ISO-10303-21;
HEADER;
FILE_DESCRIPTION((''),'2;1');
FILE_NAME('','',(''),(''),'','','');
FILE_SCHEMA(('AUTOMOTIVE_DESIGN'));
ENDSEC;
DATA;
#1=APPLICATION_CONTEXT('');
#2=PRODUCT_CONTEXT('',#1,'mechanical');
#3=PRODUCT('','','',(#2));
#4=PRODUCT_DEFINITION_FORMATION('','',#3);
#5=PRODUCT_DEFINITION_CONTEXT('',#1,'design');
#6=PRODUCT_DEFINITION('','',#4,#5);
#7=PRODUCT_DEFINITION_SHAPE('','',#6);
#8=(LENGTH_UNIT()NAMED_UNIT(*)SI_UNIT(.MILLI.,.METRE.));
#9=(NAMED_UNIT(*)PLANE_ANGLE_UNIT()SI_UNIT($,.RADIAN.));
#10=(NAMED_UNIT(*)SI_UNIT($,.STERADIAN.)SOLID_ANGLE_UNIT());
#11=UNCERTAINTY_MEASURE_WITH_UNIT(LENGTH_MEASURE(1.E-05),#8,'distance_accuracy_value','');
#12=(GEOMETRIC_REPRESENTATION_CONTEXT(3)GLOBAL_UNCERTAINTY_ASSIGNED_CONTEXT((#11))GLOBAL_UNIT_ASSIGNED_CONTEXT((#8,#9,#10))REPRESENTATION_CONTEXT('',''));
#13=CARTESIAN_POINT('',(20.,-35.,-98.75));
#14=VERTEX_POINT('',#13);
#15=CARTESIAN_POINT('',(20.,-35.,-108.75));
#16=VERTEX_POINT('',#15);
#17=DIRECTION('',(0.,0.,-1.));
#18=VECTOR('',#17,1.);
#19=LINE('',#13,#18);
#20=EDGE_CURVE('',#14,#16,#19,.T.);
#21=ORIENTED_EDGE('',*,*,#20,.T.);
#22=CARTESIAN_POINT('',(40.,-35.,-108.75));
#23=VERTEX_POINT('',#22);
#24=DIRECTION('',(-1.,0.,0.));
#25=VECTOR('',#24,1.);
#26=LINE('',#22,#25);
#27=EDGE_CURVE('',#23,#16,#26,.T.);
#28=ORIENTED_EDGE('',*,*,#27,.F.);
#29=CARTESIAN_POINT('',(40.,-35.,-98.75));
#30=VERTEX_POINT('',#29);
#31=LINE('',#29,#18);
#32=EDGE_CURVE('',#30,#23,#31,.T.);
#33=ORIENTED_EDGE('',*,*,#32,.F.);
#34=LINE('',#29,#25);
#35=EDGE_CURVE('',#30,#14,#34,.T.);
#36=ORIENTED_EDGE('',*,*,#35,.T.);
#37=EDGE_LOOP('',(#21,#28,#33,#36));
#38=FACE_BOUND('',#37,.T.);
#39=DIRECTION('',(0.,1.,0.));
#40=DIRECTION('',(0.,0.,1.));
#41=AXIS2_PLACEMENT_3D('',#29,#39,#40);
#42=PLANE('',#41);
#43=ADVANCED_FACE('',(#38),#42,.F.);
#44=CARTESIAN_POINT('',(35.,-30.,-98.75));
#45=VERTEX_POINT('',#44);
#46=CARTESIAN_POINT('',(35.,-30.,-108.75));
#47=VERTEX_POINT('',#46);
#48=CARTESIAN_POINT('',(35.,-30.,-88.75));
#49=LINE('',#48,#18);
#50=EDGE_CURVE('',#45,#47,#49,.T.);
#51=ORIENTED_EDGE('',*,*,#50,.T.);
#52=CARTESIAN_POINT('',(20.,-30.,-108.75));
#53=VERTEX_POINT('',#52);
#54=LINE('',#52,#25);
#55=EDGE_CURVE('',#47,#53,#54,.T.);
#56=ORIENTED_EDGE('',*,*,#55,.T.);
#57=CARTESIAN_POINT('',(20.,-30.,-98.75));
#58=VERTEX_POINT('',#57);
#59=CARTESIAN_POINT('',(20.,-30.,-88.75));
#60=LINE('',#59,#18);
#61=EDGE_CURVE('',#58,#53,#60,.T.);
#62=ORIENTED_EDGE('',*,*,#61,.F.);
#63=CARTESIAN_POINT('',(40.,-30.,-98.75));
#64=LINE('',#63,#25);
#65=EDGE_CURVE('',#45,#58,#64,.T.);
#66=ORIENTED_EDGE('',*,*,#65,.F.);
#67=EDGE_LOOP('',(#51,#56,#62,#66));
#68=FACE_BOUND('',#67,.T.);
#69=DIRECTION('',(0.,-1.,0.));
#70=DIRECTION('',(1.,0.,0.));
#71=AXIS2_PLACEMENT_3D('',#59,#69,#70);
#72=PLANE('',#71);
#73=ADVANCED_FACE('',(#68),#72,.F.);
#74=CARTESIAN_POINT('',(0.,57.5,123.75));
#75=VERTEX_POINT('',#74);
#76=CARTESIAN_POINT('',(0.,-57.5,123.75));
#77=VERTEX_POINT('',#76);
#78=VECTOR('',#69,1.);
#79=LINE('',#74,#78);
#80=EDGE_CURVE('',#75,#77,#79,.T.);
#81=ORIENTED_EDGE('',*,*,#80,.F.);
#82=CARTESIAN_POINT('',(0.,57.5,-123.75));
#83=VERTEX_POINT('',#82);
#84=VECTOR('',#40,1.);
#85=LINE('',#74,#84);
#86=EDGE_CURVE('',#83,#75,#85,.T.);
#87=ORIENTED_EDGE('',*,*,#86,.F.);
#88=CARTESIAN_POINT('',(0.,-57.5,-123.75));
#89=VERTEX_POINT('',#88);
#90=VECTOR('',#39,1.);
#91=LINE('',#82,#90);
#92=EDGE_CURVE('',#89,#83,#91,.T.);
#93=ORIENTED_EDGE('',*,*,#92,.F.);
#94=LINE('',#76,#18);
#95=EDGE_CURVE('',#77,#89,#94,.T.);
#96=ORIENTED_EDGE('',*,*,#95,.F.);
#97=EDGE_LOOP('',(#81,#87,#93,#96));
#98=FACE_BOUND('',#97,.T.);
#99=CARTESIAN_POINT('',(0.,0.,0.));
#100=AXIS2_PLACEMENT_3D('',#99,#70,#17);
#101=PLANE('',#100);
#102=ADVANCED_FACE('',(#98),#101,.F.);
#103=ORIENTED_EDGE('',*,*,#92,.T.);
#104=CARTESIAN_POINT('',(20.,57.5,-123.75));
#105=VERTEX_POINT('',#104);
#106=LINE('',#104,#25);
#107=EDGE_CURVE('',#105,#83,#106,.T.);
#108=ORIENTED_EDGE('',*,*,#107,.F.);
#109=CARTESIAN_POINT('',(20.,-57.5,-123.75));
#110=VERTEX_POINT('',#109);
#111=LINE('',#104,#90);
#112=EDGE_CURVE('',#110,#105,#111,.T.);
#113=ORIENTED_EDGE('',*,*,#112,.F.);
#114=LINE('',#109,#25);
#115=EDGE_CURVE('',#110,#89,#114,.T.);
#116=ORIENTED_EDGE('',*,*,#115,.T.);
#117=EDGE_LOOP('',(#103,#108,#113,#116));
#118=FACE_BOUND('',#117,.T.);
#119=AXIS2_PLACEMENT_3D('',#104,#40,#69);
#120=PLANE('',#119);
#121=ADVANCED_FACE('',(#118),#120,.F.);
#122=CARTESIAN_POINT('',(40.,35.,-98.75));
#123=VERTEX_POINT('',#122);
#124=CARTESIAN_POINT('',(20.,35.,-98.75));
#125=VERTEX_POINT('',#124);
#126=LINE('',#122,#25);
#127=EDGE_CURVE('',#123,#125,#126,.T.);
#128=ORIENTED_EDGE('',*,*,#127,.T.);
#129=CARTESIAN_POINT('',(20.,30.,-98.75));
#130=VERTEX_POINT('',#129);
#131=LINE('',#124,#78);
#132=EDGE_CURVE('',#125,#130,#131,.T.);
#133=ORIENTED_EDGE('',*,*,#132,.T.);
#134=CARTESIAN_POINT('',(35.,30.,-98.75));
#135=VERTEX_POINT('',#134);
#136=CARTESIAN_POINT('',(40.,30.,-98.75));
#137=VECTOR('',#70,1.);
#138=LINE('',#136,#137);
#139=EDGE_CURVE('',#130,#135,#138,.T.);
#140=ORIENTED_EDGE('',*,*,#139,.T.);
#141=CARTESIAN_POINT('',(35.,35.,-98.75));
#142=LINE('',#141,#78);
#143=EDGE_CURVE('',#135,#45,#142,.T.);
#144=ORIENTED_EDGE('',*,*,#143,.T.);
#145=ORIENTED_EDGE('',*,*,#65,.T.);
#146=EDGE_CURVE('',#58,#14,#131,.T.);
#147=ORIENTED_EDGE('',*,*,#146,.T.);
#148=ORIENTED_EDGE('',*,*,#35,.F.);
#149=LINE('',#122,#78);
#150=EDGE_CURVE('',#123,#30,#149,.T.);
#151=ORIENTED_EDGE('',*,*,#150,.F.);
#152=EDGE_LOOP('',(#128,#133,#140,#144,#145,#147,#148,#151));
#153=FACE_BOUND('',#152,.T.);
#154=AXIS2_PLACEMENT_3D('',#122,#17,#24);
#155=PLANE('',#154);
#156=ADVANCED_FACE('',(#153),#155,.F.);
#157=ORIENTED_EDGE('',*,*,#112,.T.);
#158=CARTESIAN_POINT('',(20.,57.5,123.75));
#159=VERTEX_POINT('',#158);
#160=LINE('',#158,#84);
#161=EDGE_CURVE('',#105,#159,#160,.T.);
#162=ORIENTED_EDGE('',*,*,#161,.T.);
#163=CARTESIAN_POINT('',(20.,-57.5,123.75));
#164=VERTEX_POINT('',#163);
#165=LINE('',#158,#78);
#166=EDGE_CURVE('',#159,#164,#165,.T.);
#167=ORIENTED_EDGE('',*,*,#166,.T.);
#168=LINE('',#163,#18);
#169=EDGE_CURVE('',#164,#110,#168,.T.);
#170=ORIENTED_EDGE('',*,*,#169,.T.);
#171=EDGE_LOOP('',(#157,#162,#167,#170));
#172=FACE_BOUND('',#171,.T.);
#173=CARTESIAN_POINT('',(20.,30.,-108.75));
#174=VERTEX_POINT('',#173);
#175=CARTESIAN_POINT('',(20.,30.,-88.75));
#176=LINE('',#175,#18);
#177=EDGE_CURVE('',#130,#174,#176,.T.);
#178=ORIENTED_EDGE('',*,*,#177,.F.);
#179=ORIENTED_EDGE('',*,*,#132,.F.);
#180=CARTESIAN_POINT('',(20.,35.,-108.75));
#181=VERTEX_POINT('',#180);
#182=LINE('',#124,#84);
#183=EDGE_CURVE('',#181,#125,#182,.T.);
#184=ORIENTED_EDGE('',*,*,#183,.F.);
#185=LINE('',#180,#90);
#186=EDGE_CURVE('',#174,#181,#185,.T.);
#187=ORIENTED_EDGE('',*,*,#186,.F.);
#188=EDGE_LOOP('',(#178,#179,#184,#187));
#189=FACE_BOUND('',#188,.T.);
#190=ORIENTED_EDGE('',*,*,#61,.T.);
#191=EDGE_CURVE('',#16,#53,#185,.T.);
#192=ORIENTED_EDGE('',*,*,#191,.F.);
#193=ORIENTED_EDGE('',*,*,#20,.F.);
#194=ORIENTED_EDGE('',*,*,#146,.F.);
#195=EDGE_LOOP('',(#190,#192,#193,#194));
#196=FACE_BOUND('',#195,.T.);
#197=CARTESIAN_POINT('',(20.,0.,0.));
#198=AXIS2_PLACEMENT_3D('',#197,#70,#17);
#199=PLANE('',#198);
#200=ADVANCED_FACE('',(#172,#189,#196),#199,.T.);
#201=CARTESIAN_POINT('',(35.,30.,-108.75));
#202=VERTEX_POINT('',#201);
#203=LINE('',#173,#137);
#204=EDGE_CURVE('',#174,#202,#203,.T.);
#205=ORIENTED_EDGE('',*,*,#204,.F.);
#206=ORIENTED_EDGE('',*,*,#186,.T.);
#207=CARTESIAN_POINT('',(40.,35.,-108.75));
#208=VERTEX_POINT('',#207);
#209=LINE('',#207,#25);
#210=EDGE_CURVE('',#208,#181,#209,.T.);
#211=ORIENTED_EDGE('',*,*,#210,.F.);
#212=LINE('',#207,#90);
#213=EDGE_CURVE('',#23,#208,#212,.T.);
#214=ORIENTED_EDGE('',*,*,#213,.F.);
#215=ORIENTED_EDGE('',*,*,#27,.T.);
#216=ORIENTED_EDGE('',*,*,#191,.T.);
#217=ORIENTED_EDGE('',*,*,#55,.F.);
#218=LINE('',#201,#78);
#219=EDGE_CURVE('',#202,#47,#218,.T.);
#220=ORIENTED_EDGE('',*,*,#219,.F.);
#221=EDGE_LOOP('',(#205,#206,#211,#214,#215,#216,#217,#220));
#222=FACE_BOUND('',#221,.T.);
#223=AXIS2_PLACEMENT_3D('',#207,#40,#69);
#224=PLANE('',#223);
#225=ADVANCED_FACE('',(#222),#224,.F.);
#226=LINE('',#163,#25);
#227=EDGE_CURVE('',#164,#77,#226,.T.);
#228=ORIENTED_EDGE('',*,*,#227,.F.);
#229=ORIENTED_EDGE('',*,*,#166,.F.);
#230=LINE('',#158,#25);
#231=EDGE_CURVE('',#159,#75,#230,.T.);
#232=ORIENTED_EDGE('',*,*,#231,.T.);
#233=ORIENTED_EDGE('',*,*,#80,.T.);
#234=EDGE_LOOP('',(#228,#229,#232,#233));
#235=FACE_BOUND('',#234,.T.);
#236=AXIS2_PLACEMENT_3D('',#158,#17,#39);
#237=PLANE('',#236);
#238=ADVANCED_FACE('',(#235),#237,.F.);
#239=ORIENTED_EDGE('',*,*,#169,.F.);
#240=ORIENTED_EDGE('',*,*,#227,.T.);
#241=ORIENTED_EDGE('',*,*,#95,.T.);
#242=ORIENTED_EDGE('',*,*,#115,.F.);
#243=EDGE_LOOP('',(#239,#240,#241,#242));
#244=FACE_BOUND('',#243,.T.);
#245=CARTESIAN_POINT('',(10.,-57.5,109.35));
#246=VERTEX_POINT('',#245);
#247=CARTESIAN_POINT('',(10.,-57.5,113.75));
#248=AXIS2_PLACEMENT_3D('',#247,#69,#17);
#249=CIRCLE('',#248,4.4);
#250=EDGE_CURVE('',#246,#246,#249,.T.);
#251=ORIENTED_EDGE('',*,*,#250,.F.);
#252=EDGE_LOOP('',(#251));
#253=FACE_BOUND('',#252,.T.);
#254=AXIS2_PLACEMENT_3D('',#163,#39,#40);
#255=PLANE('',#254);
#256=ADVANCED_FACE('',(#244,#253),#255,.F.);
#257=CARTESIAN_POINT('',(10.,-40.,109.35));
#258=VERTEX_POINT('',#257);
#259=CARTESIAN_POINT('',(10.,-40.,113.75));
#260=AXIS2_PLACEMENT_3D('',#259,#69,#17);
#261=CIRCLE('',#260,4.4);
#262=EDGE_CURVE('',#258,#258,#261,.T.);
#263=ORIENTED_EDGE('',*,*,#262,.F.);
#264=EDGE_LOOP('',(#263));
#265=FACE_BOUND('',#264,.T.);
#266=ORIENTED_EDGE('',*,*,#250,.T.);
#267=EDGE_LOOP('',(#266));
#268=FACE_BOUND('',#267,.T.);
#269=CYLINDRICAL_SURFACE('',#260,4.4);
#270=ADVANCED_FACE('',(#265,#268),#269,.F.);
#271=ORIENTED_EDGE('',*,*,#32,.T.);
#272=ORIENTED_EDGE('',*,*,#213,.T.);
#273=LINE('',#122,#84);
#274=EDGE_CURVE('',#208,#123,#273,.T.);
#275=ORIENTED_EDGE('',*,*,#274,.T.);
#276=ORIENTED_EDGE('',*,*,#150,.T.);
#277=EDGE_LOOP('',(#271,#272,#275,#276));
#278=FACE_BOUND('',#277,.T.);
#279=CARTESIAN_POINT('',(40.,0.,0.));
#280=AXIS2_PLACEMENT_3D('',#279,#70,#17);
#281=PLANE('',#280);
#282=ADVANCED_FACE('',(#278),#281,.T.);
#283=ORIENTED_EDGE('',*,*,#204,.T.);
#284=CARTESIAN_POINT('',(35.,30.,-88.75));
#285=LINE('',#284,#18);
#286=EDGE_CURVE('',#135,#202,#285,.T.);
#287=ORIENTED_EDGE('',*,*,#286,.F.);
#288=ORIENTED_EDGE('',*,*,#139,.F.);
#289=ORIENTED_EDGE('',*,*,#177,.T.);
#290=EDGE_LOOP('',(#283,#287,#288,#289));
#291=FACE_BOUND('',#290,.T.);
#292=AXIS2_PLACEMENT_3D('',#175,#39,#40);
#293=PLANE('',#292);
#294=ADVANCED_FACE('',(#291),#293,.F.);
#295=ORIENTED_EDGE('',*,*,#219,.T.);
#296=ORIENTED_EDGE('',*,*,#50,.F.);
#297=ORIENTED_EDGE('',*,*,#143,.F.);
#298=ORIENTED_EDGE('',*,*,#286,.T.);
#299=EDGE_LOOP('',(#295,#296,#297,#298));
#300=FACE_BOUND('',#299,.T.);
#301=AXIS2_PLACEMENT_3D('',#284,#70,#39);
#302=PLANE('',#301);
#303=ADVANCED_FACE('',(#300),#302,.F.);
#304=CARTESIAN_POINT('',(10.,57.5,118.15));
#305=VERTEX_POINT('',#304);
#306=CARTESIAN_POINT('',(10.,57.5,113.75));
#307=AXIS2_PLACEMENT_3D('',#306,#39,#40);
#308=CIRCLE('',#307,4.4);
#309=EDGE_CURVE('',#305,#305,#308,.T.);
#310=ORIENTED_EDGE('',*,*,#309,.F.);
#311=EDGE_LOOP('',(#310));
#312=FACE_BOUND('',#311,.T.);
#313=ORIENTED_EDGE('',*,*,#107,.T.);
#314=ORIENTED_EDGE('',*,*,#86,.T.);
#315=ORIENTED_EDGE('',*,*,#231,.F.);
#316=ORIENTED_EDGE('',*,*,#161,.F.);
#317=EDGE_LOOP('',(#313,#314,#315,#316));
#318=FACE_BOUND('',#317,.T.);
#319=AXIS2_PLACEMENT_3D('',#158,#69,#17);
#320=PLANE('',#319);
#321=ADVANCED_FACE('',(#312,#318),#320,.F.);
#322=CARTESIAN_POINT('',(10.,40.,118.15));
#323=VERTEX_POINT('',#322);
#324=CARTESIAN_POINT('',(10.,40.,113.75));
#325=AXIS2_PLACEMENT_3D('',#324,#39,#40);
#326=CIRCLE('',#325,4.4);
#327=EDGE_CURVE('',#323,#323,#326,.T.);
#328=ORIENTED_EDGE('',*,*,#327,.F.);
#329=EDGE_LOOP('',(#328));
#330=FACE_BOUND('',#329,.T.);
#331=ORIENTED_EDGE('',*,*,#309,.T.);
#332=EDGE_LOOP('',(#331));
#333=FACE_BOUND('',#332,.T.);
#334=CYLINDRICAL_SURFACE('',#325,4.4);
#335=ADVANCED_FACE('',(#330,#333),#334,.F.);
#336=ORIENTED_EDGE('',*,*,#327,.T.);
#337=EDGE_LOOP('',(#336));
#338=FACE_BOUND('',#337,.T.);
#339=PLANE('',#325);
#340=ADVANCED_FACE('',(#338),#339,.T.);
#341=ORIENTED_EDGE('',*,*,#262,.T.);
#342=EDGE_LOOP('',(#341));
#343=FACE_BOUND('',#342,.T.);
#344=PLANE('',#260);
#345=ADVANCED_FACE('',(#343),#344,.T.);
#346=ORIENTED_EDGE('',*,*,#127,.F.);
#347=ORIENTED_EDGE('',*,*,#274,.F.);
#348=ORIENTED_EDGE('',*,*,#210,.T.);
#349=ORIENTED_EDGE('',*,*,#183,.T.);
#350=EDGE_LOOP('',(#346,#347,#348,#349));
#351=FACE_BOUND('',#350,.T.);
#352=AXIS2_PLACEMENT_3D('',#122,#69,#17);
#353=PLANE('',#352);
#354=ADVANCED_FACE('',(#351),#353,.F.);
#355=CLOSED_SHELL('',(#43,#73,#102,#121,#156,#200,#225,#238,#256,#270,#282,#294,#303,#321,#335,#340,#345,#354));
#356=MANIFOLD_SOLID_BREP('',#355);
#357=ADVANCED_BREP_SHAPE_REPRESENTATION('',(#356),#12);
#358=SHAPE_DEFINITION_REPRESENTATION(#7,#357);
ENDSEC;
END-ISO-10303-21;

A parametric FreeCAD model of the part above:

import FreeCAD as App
import Part
import Sketcher

V = App.Vector
Q = App.Units.Quantity


def add_polygon(sketch, points):
    """Adds a closed chain of lines whose ends are joined by coincident constraints."""
    first, n = sketch.GeometryCount, len(points)
    for a, b in zip(points, points[1:] + points[:1]):
        sketch.addGeometry(Part.LineSegment(App.Vector(*a, 0), App.Vector(*b, 0)), False)
    for i in range(n):
        sketch.addConstraint(Sketcher.Constraint("Coincident", first + i, 2, first + (i + 1) % n, 1))

doc = App.newDocument("Part")
body = doc.addObject("PartDesign::Body", "Body")

sketch1 = doc.addObject("Sketcher::SketchObject", "Sketch")
body.addObject(sketch1)
sketch1.AttachmentSupport = (doc.YZ_Plane, [""])
sketch1.MapMode = "FlatFace"
add_polygon(sketch1, [(58, 124), (-58, 124), (-58, -124), (58, -124)])
sketch1.addConstraint([
    Sketcher.Constraint("Horizontal", 0),
    Sketcher.Constraint("Vertical", 1),
    Sketcher.Constraint("Horizontal", 2),
    Sketcher.Constraint("Vertical", 3),
    Sketcher.Constraint("Symmetric", 0, 2, 2, 2, -1, 1),
    Sketcher.Constraint("DistanceX", 0, 2, 0, 1, Q("115 mm")),
    Sketcher.Constraint("DistanceY", 1, 2, 1, 1, Q("247.5 mm")),
])
pad1 = doc.addObject("PartDesign::Pad", "Pad")
body.addObject(pad1)
pad1.Profile = sketch1
pad1.Length = 20

sketch2 = doc.addObject("Sketcher::SketchObject", "Sketch001")
body.addObject(sketch2)
sketch2.AttachmentSupport = (doc.XZ_Plane, [""])
sketch2.MapMode = "FlatFace"
sketch2.AttachmentOffset = App.Placement(V(0, 0, -57.5), App.Rotation())
sketch2.addGeometry(Part.Circle(V(10, 113.8, 0), V(0, 0, 1), 4.4), False)
sketch2.addConstraint([
    Sketcher.Constraint("Diameter", 0, Q("8.8 mm")),
    Sketcher.Constraint("DistanceX", -1, 1, 0, 3, Q("10 mm")),
    Sketcher.Constraint("DistanceY", -1, 1, 0, 3, Q("113.75 mm")),
])
pocket1 = doc.addObject("PartDesign::Pocket", "Pocket")
body.addObject(pocket1)
pocket1.Profile = sketch2
pocket1.Length = 17.5
pocket1.Reversed = True

sketch3 = doc.addObject("Sketcher::SketchObject", "Sketch002")
body.addObject(sketch3)
sketch3.AttachmentSupport = (doc.XZ_Plane, [""])
sketch3.MapMode = "FlatFace"
sketch3.AttachmentOffset = App.Placement(V(0, 0, 57.5), App.Rotation())
sketch3.addGeometry(Part.Circle(V(10, 113.8, 0), V(0, 0, 1), 4.4), False)
sketch3.addConstraint([
    Sketcher.Constraint("Diameter", 0, Q("8.8 mm")),
    Sketcher.Constraint("DistanceX", -1, 1, 0, 3, Q("10 mm")),
    Sketcher.Constraint("DistanceY", -1, 1, 0, 3, Q("113.75 mm")),
])
pocket2 = doc.addObject("PartDesign::Pocket", "Pocket001")
body.addObject(pocket2)
pocket2.Profile = sketch3
pocket2.Length = 17.5

sketch4 = doc.addObject("Sketcher::SketchObject", "Sketch003")
body.addObject(sketch4)
sketch4.AttachmentSupport = (doc.YZ_Plane, [""])
sketch4.MapMode = "FlatFace"
sketch4.AttachmentOffset = App.Placement(V(0, 0, 20), App.Rotation())
add_polygon(sketch4, [(35, -99), (-35, -99), (-35, -109), (35, -109)])
sketch4.addConstraint([
    Sketcher.Constraint("Horizontal", 0),
    Sketcher.Constraint("Vertical", 1),
    Sketcher.Constraint("Horizontal", 2),
    Sketcher.Constraint("Vertical", 3),
    Sketcher.Constraint("DistanceX", 0, 2, 0, 1, Q("70 mm")),
    Sketcher.Constraint("DistanceY", 1, 2, 1, 1, Q("10 mm")),
    Sketcher.Constraint("DistanceX", 0, 2, -1, 1, Q("35 mm")),
    Sketcher.Constraint("DistanceY", 0, 2, -1, 1, Q("98.75 mm")),
])
pad2 = doc.addObject("PartDesign::Pad", "Pad001")
body.addObject(pad2)
pad2.Profile = sketch4
pad2.Length = 20

sketch5 = doc.addObject("Sketcher::SketchObject", "Sketch004")
body.addObject(sketch5)
sketch5.AttachmentSupport = (doc.XY_Plane, [""])
sketch5.MapMode = "FlatFace"
sketch5.AttachmentOffset = App.Placement(V(0, 0, -108.75), App.Rotation())
add_polygon(sketch5, [(35, 30), (35, -30), (20, -30), (20, 30)])
sketch5.addConstraint([
    Sketcher.Constraint("Vertical", 0),
    Sketcher.Constraint("Horizontal", 1),
    Sketcher.Constraint("Vertical", 2),
    Sketcher.Constraint("Horizontal", 3),
    Sketcher.Constraint("DistanceX", 1, 2, 1, 1, Q("15 mm")),
    Sketcher.Constraint("DistanceY", 0, 2, 0, 1, Q("60 mm")),
    Sketcher.Constraint("DistanceX", -1, 1, 0, 2, Q("35 mm")),
    Sketcher.Constraint("DistanceY", 0, 2, -1, 1, Q("30 mm")),
])
pocket3 = doc.addObject("PartDesign::Pocket", "Pocket002")
body.addObject(pocket3)
pocket3.Profile = sketch5
pocket3.Length = 20
pocket3.Reversed = True

doc.recompute()
